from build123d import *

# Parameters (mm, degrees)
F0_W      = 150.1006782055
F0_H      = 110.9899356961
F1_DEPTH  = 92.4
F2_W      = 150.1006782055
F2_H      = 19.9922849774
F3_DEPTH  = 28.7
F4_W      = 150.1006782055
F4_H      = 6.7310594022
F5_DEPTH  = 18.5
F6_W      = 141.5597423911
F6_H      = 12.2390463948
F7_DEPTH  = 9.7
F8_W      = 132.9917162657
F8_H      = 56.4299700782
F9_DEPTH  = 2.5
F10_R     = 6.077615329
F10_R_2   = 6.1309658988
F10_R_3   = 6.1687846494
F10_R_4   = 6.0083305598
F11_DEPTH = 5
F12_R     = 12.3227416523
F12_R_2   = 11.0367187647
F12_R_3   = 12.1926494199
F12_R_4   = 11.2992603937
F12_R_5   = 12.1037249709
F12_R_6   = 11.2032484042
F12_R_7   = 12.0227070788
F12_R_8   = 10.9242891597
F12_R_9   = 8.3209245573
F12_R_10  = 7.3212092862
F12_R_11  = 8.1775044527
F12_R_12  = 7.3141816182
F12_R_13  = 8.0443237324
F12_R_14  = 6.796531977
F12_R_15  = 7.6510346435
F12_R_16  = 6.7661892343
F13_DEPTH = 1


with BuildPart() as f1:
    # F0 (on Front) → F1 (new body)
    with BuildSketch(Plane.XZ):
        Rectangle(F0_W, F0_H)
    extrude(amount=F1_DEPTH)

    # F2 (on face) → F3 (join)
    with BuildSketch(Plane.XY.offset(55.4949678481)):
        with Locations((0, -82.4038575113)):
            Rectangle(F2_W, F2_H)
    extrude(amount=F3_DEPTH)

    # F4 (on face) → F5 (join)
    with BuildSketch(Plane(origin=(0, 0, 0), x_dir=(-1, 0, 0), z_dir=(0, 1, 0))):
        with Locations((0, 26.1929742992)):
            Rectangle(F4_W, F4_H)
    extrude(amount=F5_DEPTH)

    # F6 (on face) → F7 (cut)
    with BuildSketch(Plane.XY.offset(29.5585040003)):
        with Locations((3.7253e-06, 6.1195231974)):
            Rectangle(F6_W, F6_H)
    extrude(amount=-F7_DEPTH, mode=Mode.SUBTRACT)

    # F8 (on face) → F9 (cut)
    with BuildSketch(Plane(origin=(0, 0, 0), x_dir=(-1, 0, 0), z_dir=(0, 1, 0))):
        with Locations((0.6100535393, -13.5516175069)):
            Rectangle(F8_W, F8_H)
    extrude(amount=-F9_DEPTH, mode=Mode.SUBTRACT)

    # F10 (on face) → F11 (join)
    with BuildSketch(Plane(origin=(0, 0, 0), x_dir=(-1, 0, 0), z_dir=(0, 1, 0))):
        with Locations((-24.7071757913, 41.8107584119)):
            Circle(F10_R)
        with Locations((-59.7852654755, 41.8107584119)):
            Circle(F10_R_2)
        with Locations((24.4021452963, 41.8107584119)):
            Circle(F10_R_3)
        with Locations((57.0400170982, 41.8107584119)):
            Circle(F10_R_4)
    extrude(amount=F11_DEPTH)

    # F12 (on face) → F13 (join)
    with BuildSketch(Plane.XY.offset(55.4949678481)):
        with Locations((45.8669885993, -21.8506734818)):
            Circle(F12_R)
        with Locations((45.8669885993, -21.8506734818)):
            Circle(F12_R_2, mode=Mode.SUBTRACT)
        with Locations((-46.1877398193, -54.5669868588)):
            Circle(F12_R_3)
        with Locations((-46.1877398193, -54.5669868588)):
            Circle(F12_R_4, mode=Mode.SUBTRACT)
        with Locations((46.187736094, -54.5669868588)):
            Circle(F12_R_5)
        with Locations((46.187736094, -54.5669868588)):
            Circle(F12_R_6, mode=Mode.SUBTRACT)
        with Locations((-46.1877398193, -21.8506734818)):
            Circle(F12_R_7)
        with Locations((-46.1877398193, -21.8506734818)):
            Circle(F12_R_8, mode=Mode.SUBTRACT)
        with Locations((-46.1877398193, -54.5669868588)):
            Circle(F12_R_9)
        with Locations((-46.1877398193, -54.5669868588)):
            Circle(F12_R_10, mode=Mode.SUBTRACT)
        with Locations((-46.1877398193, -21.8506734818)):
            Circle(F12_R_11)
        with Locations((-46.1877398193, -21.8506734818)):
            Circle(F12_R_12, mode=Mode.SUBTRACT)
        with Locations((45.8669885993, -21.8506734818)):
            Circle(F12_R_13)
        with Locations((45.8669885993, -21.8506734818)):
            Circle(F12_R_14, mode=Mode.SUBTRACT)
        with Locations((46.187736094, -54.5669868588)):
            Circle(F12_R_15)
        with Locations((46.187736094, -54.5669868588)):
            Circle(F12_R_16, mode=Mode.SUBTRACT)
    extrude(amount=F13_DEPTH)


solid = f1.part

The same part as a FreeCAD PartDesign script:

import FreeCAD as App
import Part
import Sketcher

V = App.Vector

doc = App.newDocument("Part")
body = doc.addObject("PartDesign::Body", "Body")

# Sketch on XZ plane
sketch1 = body.newObject("Sketcher::SketchObject", "Sketch")
sketch1.AttachmentSupport = (doc.getObject("XZ_Plane"), [""])
sketch1.MapMode = "FlatFace"
sketch1.addGeometry(Part.LineSegment(V(-75, 55, 0), V(-75, -55, 0)), False)
sketch1.addGeometry(Part.LineSegment(V(-75, -55, 0), V(75, -55, 0)), False)
sketch1.addGeometry(Part.LineSegment(V(75, -55, 0), V(75, 55, 0)), False)
sketch1.addGeometry(Part.LineSegment(V(75, 55, 0), V(-75, 55, 0)), False)
sketch1.addConstraint(Sketcher.Constraint("Coincident", 0, 2, 1, 1))
sketch1.addConstraint(Sketcher.Constraint("Coincident", 1, 2, 2, 1))
sketch1.addConstraint(Sketcher.Constraint("Coincident", 2, 2, 3, 1))
sketch1.addConstraint(Sketcher.Constraint("Coincident", 3, 2, 0, 1))
sketch1.addConstraint(Sketcher.Constraint("Vertical", 0))
sketch1.addConstraint(Sketcher.Constraint("Horizontal", 1))
sketch1.addConstraint(Sketcher.Constraint("Vertical", 2))
sketch1.addConstraint(Sketcher.Constraint("Horizontal", 3))
sketch1.addConstraint(Sketcher.Constraint("Symmetric", 0, 2, 2, 2, -1, 1))
sketch1.addConstraint(Sketcher.Constraint("DistanceX", 1, 1, 1, 2, 150.100678))
sketch1.addConstraint(Sketcher.Constraint("DistanceY", 0, 2, 0, 1, 110.989936))
pad1 = body.newObject("PartDesign::Pad", "Pad")
pad1.Profile = sketch1
pad1.Length = 92.4

# Sketch on XY plane
sketch2 = body.newObject("Sketcher::SketchObject", "Sketch001")
sketch2.AttachmentSupport = (doc.getObject("XY_Plane"), [""])
sketch2.MapMode = "FlatFace"
sketch2.AttachmentOffset = App.Placement(V(0, 0, 55.494968), App.Rotation())
sketch2.addGeometry(Part.LineSegment(V(-75, -72, 0), V(-75, -92, 0)), False)
sketch2.addGeometry(Part.LineSegment(V(-75, -92, 0), V(75, -92, 0)), False)
sketch2.addGeometry(Part.LineSegment(V(75, -92, 0), V(75, -72, 0)), False)
sketch2.addGeometry(Part.LineSegment(V(75, -72, 0), V(-75, -72, 0)), False)
sketch2.addConstraint(Sketcher.Constraint("Coincident", 0, 2, 1, 1))
sketch2.addConstraint(Sketcher.Constraint("Coincident", 1, 2, 2, 1))
sketch2.addConstraint(Sketcher.Constraint("Coincident", 2, 2, 3, 1))
sketch2.addConstraint(Sketcher.Constraint("Coincident", 3, 2, 0, 1))
sketch2.addConstraint(Sketcher.Constraint("Vertical", 0))
sketch2.addConstraint(Sketcher.Constraint("Horizontal", 1))
sketch2.addConstraint(Sketcher.Constraint("Vertical", 2))
sketch2.addConstraint(Sketcher.Constraint("Horizontal", 3))
sketch2.addConstraint(Sketcher.Constraint("DistanceY", 0, 2, -1, 1, 92.4))
sketch2.addConstraint(Sketcher.Constraint("DistanceX", 1, 1, 1, 2, 150.100678))
sketch2.addConstraint(Sketcher.Constraint("DistanceY", 0, 2, 0, 1, 19.992285))
sketch2.addConstraint(Sketcher.Constraint("DistanceX", 0, 2, -1, 1, 75.050339))
pad2 = body.newObject("PartDesign::Pad", "Pad001")
pad2.Profile = sketch2
pad2.Length = 28.7

# Sketch on XZ plane
sketch3 = body.newObject("Sketcher::SketchObject", "Sketch002")
sketch3.AttachmentSupport = (doc.getObject("XZ_Plane"), [""])
sketch3.MapMode = "FlatFace"
sketch3.addGeometry(Part.LineSegment(V(75, 30, 0), V(75, 23, 0)), False)
sketch3.addGeometry(Part.LineSegment(V(75, 23, 0), V(-75, 23, 0)), False)
sketch3.addGeometry(Part.LineSegment(V(-75, 23, 0), V(-75, 30, 0)), False)
sketch3.addGeometry(Part.LineSegment(V(-75, 30, 0), V(75, 30, 0)), False)
sketch3.addConstraint(Sketcher.Constraint("Coincident", 0, 2, 1, 1))
sketch3.addConstraint(Sketcher.Constraint("Coincident", 1, 2, 2, 1))
sketch3.addConstraint(Sketcher.Constraint("Coincident", 2, 2, 3, 1))
sketch3.addConstraint(Sketcher.Constraint("Coincident", 3, 2, 0, 1))
sketch3.addConstraint(Sketcher.Constraint("Vertical", 0))
sketch3.addConstraint(Sketcher.Constraint("Horizontal", 1))
sketch3.addConstraint(Sketcher.Constraint("Vertical", 2))
sketch3.addConstraint(Sketcher.Constraint("Horizontal", 3))
sketch3.addConstraint(Sketcher.Constraint("DistanceX", 1, 2, 1, 1, 150.100678))
sketch3.addConstraint(Sketcher.Constraint("DistanceY", 0, 2, 0, 1, 6.731059))
sketch3.addConstraint(Sketcher.Constraint("DistanceX", -1, 1, 0, 2, 75.050339))
sketch3.addConstraint(Sketcher.Constraint("DistanceY", -1, 1, 0, 2, 22.827445))
pad3 = body.newObject("PartDesign::Pad", "Pad002")
pad3.Profile = sketch3
pad3.Length = 18.5
pad3.Reversed = True

# Sketch on XY plane
sketch4 = body.newObject("Sketcher::SketchObject", "Sketch003")
sketch4.AttachmentSupport = (doc.getObject("XY_Plane"), [""])
sketch4.MapMode = "FlatFace"
sketch4.AttachmentOffset = App.Placement(V(0, 0, 29.558504), App.Rotation())
sketch4.addGeometry(Part.LineSegment(V(-71, 12, 0), V(-71, 0, 0)), False)
sketch4.addGeometry(Part.LineSegment(V(-71, 0, 0), V(71, 0, 0)), False)
sketch4.addGeometry(Part.LineSegment(V(71, 0, 0), V(71, 12, 0)), False)
sketch4.addGeometry(Part.LineSegment(V(71, 12, 0), V(-71, 12, 0)), False)
sketch4.addConstraint(Sketcher.Constraint("Coincident", 0, 2, 1, 1))
sketch4.addConstraint(Sketcher.Constraint("Coincident", 1, 2, 2, 1))
sketch4.addConstraint(Sketcher.Constraint("Coincident", 2, 2, 3, 1))
sketch4.addConstraint(Sketcher.Constraint("Coincident", 3, 2, 0, 1))
sketch4.addConstraint(Sketcher.Constraint("Vertical", 0))
sketch4.addConstraint(Sketcher.Constraint("Horizontal", 1))
sketch4.addConstraint(Sketcher.Constraint("Vertical", 2))
sketch4.addConstraint(Sketcher.Constraint("Horizontal", 3))
sketch4.addConstraint(Sketcher.Constraint("Symmetric", 0, 2, 1, 2, -1, 1))
sketch4.addConstraint(Sketcher.Constraint("DistanceX", 1, 1, 1, 2, 141.559742))
sketch4.addConstraint(Sketcher.Constraint("DistanceY", 0, 2, 0, 1, 12.239046))
pocket1 = body.newObject("PartDesign::Pocket", "Pocket")
pocket1.Profile = sketch4
pocket1.Length = 9.7

# Sketch on XZ plane
sketch5 = body.newObject("Sketcher::SketchObject", "Sketch004")
sketch5.AttachmentSupport = (doc.getObject("XZ_Plane"), [""])
sketch5.MapMode = "FlatFace"
sketch5.addGeometry(Part.LineSegment(V(66, 15, 0), V(66, -42, 0)), False)
sketch5.addGeometry(Part.LineSegment(V(66, -42, 0), V(-67, -42, 0)), False)
sketch5.addGeometry(Part.LineSegment(V(-67, -42, 0), V(-67, 15, 0)), False)
sketch5.addGeometry(Part.LineSegment(V(-67, 15, 0), V(66, 15, 0)), False)
sketch5.addConstraint(Sketcher.Constraint("Coincident", 0, 2, 1, 1))
sketch5.addConstraint(Sketcher.Constraint("Coincident", 1, 2, 2, 1))
sketch5.addConstraint(Sketcher.Constraint("Coincident", 2, 2, 3, 1))
sketch5.addConstraint(Sketcher.Constraint("Coincident", 3, 2, 0, 1))
sketch5.addConstraint(Sketcher.Constraint("Vertical", 0))
sketch5.addConstraint(Sketcher.Constraint("Horizontal", 1))
sketch5.addConstraint(Sketcher.Constraint("Vertical", 2))
sketch5.addConstraint(Sketcher.Constraint("Horizontal", 3))
sketch5.addConstraint(Sketcher.Constraint("DistanceY", 0, 2, 0, 1, 56.42997))
sketch5.addConstraint(Sketcher.Constraint("DistanceX", 1, 2, 1, 1, 132.991716))
sketch5.addConstraint(Sketcher.Constraint("DistanceX", 1, 2, -1, 1, 67.105912))
sketch5.addConstraint(Sketcher.Constraint("DistanceY", 0, 2, -1, 1, 41.766603))
pocket2 = body.newObject("PartDesign::Pocket", "Pocket001")
pocket2.Profile = sketch5
pocket2.Length = 2.5
pocket2.Reversed = True

# Sketch on XZ plane
sketch6 = body.newObject("Sketcher::SketchObject", "Sketch005")
sketch6.AttachmentSupport = (doc.getObject("XZ_Plane"), [""])
sketch6.MapMode = "FlatFace"
sketch6.addGeometry(Part.Circle(V(25, 42, 0), V(0, 0, 1), 6), False)
sketch6.addGeometry(Part.Circle(V(60, 42, 0), V(0, 0, 1), 6), False)
sketch6.addGeometry(Part.Circle(V(-24, 42, 0), V(0, 0, 1), 6), False)
sketch6.addGeometry(Part.Circle(V(-57, 42, 0), V(0, 0, 1), 6), False)
sketch6.addConstraint(Sketcher.Constraint("Horizontal", 0, 3, 1, 3))
sketch6.addConstraint(Sketcher.Constraint("Horizontal", 1, 3, 2, 3))
sketch6.addConstraint(Sketcher.Constraint("Horizontal", 2, 3, 3, 3))
sketch6.addConstraint(Sketcher.Constraint("Diameter", 0, 12.155231))
sketch6.addConstraint(Sketcher.Constraint("Diameter", 1, 12.261932))
sketch6.addConstraint(Sketcher.Constraint("Diameter", 2, 12.337569))
sketch6.addConstraint(Sketcher.Constraint("Diameter", 3, 12.016661))
sketch6.addConstraint(Sketcher.Constraint("DistanceY", -1, 1, 0, 3, 41.810758))
sketch6.addConstraint(Sketcher.Constraint("DistanceX", 0, 3, 1, 3, 35.07809))
sketch6.addConstraint(Sketcher.Constraint("DistanceX", 2, 3, 0, 3, 49.109321))
sketch6.addConstraint(Sketcher.Constraint("DistanceX", 3, 3, 2, 3, 32.637872))
sketch6.addConstraint(Sketcher.Constraint("DistanceX", -1, 1, 0, 3, 24.707176))
pad4 = body.newObject("PartDesign::Pad", "Pad003")
pad4.Profile = sketch6
pad4.Length = 5
pad4.Reversed = True

# Sketch on XY plane
sketch7 = body.newObject("Sketcher::SketchObject", "Sketch006")
sketch7.AttachmentSupport = (doc.getObject("XY_Plane"), [""])
sketch7.MapMode = "FlatFace"
sketch7.AttachmentOffset = App.Placement(V(0, 0, 55.494968), App.Rotation())
sketch7.addGeometry(Part.Circle(V(46, -22, 0), V(0, 0, 1), 12), False)
sketch7.addGeometry(Part.Circle(V(46, -22, 0), V(0, 0, 1), 11), False)
sketch7.addGeometry(Part.Circle(V(-46, -55, 0), V(0, 0, 1), 12), False)
sketch7.addGeometry(Part.Circle(V(-46, -55, 0), V(0, 0, 1), 11), False)
sketch7.addGeometry(Part.Circle(V(46, -55, 0), V(0, 0, 1), 12), False)
sketch7.addGeometry(Part.Circle(V(46, -55, 0), V(0, 0, 1), 11), False)
sketch7.addGeometry(Part.Circle(V(-46, -22, 0), V(0, 0, 1), 12), False)
sketch7.addGeometry(Part.Circle(V(-46, -22, 0), V(0, 0, 1), 11), False)
sketch7.addGeometry(Part.Circle(V(-46, -55, 0), V(0, 0, 1), 8), False)
sketch7.addGeometry(Part.Circle(V(-46, -55, 0), V(0, 0, 1), 7), False)
sketch7.addGeometry(Part.Circle(V(-46, -22, 0), V(0, 0, 1), 8), False)
sketch7.addGeometry(Part.Circle(V(-46, -22, 0), V(0, 0, 1), 7), False)
sketch7.addGeometry(Part.Circle(V(46, -22, 0), V(0, 0, 1), 8), False)
sketch7.addGeometry(Part.Circle(V(46, -22, 0), V(0, 0, 1), 7), False)
sketch7.addGeometry(Part.Circle(V(46, -55, 0), V(0, 0, 1), 8), False)
sketch7.addGeometry(Part.Circle(V(46, -55, 0), V(0, 0, 1), 7), False)
sketch7.addConstraint(Sketcher.Constraint("Coincident", 1, 3, 0, 3))
sketch7.addConstraint(Sketcher.Constraint("Coincident", 3, 3, 2, 3))
sketch7.addConstraint(Sketcher.Constraint("Coincident", 5, 3, 4, 3))
sketch7.addConstraint(Sketcher.Constraint("Coincident", 7, 3, 6, 3))
sketch7.addConstraint(Sketcher.Constraint("Coincident", 8, 3, 2, 3))
sketch7.addConstraint(Sketcher.Constraint("Coincident", 9, 3, 2, 3))
sketch7.addConstraint(Sketcher.Constraint("Coincident", 10, 3, 6, 3))
sketch7.addConstraint(Sketcher.Constraint("Coincident", 11, 3, 6, 3))
sketch7.addConstraint(Sketcher.Constraint("Coincident", 12, 3, 0, 3))
sketch7.addConstraint(Sketcher.Constraint("Coincident", 13, 3, 0, 3))
sketch7.addConstraint(Sketcher.Constraint("Coincident", 14, 3, 4, 3))
sketch7.addConstraint(Sketcher.Constraint("Coincident", 15, 3, 4, 3))
sketch7.addConstraint(Sketcher.Constraint("Symmetric", 2, 3, 4, 3, -2))
sketch7.addConstraint(Sketcher.Constraint("Horizontal", 1, 3, 6, 3))
sketch7.addConstraint(Sketcher.Constraint("Vertical", 3, 3, 6, 3))
sketch7.addConstraint(Sketcher.Constraint("Diameter", 2, 24.385299))
sketch7.addConstraint(Sketcher.Constraint("Diameter", 3, 22.598521))
sketch7.addConstraint(Sketcher.Constraint("Diameter", 4, 24.20745))
sketch7.addConstraint(Sketcher.Constraint("Diameter", 7, 21.848578))
sketch7.addConstraint(Sketcher.Constraint("Diameter", 8, 16.641849))
sketch7.addConstraint(Sketcher.Constraint("Diameter", 9, 14.642419))
sketch7.addConstraint(Sketcher.Constraint("Diameter", 10, 16.355009))
sketch7.addConstraint(Sketcher.Constraint("Diameter", 14, 15.302069))
sketch7.addConstraint(Sketcher.Constraint("Diameter", 15, 13.532378))
sketch7.addConstraint(Sketcher.Constraint("Diameter", 0, 24.645483))
sketch7.addConstraint(Sketcher.Constraint("Diameter", 1, 22.073438))
sketch7.addConstraint(Sketcher.Constraint("Diameter", 5, 22.406497))
sketch7.addConstraint(Sketcher.Constraint("Diameter", 6, 24.045414))
sketch7.addConstraint(Sketcher.Constraint("Diameter", 11, 14.628363))
sketch7.addConstraint(Sketcher.Constraint("Diameter", 12, 16.088647))
sketch7.addConstraint(Sketcher.Constraint("Diameter", 13, 13.593064))
sketch7.addConstraint(Sketcher.Constraint("DistanceX", -1, 1, 0, 3, 45.866989))
sketch7.addConstraint(Sketcher.Constraint("DistanceX", 2, 3, -1, 1, 46.18774))
sketch7.addConstraint(Sketcher.Constraint("DistanceY", 0, 3, -1, 1, 21.850673))
sketch7.addConstraint(Sketcher.Constraint("DistanceY", 2, 3, -1, 1, 54.566987))
pad5 = body.newObject("PartDesign::Pad", "Pad004")
pad5.Profile = sketch7
pad5.Length = 1

doc.recompute()
